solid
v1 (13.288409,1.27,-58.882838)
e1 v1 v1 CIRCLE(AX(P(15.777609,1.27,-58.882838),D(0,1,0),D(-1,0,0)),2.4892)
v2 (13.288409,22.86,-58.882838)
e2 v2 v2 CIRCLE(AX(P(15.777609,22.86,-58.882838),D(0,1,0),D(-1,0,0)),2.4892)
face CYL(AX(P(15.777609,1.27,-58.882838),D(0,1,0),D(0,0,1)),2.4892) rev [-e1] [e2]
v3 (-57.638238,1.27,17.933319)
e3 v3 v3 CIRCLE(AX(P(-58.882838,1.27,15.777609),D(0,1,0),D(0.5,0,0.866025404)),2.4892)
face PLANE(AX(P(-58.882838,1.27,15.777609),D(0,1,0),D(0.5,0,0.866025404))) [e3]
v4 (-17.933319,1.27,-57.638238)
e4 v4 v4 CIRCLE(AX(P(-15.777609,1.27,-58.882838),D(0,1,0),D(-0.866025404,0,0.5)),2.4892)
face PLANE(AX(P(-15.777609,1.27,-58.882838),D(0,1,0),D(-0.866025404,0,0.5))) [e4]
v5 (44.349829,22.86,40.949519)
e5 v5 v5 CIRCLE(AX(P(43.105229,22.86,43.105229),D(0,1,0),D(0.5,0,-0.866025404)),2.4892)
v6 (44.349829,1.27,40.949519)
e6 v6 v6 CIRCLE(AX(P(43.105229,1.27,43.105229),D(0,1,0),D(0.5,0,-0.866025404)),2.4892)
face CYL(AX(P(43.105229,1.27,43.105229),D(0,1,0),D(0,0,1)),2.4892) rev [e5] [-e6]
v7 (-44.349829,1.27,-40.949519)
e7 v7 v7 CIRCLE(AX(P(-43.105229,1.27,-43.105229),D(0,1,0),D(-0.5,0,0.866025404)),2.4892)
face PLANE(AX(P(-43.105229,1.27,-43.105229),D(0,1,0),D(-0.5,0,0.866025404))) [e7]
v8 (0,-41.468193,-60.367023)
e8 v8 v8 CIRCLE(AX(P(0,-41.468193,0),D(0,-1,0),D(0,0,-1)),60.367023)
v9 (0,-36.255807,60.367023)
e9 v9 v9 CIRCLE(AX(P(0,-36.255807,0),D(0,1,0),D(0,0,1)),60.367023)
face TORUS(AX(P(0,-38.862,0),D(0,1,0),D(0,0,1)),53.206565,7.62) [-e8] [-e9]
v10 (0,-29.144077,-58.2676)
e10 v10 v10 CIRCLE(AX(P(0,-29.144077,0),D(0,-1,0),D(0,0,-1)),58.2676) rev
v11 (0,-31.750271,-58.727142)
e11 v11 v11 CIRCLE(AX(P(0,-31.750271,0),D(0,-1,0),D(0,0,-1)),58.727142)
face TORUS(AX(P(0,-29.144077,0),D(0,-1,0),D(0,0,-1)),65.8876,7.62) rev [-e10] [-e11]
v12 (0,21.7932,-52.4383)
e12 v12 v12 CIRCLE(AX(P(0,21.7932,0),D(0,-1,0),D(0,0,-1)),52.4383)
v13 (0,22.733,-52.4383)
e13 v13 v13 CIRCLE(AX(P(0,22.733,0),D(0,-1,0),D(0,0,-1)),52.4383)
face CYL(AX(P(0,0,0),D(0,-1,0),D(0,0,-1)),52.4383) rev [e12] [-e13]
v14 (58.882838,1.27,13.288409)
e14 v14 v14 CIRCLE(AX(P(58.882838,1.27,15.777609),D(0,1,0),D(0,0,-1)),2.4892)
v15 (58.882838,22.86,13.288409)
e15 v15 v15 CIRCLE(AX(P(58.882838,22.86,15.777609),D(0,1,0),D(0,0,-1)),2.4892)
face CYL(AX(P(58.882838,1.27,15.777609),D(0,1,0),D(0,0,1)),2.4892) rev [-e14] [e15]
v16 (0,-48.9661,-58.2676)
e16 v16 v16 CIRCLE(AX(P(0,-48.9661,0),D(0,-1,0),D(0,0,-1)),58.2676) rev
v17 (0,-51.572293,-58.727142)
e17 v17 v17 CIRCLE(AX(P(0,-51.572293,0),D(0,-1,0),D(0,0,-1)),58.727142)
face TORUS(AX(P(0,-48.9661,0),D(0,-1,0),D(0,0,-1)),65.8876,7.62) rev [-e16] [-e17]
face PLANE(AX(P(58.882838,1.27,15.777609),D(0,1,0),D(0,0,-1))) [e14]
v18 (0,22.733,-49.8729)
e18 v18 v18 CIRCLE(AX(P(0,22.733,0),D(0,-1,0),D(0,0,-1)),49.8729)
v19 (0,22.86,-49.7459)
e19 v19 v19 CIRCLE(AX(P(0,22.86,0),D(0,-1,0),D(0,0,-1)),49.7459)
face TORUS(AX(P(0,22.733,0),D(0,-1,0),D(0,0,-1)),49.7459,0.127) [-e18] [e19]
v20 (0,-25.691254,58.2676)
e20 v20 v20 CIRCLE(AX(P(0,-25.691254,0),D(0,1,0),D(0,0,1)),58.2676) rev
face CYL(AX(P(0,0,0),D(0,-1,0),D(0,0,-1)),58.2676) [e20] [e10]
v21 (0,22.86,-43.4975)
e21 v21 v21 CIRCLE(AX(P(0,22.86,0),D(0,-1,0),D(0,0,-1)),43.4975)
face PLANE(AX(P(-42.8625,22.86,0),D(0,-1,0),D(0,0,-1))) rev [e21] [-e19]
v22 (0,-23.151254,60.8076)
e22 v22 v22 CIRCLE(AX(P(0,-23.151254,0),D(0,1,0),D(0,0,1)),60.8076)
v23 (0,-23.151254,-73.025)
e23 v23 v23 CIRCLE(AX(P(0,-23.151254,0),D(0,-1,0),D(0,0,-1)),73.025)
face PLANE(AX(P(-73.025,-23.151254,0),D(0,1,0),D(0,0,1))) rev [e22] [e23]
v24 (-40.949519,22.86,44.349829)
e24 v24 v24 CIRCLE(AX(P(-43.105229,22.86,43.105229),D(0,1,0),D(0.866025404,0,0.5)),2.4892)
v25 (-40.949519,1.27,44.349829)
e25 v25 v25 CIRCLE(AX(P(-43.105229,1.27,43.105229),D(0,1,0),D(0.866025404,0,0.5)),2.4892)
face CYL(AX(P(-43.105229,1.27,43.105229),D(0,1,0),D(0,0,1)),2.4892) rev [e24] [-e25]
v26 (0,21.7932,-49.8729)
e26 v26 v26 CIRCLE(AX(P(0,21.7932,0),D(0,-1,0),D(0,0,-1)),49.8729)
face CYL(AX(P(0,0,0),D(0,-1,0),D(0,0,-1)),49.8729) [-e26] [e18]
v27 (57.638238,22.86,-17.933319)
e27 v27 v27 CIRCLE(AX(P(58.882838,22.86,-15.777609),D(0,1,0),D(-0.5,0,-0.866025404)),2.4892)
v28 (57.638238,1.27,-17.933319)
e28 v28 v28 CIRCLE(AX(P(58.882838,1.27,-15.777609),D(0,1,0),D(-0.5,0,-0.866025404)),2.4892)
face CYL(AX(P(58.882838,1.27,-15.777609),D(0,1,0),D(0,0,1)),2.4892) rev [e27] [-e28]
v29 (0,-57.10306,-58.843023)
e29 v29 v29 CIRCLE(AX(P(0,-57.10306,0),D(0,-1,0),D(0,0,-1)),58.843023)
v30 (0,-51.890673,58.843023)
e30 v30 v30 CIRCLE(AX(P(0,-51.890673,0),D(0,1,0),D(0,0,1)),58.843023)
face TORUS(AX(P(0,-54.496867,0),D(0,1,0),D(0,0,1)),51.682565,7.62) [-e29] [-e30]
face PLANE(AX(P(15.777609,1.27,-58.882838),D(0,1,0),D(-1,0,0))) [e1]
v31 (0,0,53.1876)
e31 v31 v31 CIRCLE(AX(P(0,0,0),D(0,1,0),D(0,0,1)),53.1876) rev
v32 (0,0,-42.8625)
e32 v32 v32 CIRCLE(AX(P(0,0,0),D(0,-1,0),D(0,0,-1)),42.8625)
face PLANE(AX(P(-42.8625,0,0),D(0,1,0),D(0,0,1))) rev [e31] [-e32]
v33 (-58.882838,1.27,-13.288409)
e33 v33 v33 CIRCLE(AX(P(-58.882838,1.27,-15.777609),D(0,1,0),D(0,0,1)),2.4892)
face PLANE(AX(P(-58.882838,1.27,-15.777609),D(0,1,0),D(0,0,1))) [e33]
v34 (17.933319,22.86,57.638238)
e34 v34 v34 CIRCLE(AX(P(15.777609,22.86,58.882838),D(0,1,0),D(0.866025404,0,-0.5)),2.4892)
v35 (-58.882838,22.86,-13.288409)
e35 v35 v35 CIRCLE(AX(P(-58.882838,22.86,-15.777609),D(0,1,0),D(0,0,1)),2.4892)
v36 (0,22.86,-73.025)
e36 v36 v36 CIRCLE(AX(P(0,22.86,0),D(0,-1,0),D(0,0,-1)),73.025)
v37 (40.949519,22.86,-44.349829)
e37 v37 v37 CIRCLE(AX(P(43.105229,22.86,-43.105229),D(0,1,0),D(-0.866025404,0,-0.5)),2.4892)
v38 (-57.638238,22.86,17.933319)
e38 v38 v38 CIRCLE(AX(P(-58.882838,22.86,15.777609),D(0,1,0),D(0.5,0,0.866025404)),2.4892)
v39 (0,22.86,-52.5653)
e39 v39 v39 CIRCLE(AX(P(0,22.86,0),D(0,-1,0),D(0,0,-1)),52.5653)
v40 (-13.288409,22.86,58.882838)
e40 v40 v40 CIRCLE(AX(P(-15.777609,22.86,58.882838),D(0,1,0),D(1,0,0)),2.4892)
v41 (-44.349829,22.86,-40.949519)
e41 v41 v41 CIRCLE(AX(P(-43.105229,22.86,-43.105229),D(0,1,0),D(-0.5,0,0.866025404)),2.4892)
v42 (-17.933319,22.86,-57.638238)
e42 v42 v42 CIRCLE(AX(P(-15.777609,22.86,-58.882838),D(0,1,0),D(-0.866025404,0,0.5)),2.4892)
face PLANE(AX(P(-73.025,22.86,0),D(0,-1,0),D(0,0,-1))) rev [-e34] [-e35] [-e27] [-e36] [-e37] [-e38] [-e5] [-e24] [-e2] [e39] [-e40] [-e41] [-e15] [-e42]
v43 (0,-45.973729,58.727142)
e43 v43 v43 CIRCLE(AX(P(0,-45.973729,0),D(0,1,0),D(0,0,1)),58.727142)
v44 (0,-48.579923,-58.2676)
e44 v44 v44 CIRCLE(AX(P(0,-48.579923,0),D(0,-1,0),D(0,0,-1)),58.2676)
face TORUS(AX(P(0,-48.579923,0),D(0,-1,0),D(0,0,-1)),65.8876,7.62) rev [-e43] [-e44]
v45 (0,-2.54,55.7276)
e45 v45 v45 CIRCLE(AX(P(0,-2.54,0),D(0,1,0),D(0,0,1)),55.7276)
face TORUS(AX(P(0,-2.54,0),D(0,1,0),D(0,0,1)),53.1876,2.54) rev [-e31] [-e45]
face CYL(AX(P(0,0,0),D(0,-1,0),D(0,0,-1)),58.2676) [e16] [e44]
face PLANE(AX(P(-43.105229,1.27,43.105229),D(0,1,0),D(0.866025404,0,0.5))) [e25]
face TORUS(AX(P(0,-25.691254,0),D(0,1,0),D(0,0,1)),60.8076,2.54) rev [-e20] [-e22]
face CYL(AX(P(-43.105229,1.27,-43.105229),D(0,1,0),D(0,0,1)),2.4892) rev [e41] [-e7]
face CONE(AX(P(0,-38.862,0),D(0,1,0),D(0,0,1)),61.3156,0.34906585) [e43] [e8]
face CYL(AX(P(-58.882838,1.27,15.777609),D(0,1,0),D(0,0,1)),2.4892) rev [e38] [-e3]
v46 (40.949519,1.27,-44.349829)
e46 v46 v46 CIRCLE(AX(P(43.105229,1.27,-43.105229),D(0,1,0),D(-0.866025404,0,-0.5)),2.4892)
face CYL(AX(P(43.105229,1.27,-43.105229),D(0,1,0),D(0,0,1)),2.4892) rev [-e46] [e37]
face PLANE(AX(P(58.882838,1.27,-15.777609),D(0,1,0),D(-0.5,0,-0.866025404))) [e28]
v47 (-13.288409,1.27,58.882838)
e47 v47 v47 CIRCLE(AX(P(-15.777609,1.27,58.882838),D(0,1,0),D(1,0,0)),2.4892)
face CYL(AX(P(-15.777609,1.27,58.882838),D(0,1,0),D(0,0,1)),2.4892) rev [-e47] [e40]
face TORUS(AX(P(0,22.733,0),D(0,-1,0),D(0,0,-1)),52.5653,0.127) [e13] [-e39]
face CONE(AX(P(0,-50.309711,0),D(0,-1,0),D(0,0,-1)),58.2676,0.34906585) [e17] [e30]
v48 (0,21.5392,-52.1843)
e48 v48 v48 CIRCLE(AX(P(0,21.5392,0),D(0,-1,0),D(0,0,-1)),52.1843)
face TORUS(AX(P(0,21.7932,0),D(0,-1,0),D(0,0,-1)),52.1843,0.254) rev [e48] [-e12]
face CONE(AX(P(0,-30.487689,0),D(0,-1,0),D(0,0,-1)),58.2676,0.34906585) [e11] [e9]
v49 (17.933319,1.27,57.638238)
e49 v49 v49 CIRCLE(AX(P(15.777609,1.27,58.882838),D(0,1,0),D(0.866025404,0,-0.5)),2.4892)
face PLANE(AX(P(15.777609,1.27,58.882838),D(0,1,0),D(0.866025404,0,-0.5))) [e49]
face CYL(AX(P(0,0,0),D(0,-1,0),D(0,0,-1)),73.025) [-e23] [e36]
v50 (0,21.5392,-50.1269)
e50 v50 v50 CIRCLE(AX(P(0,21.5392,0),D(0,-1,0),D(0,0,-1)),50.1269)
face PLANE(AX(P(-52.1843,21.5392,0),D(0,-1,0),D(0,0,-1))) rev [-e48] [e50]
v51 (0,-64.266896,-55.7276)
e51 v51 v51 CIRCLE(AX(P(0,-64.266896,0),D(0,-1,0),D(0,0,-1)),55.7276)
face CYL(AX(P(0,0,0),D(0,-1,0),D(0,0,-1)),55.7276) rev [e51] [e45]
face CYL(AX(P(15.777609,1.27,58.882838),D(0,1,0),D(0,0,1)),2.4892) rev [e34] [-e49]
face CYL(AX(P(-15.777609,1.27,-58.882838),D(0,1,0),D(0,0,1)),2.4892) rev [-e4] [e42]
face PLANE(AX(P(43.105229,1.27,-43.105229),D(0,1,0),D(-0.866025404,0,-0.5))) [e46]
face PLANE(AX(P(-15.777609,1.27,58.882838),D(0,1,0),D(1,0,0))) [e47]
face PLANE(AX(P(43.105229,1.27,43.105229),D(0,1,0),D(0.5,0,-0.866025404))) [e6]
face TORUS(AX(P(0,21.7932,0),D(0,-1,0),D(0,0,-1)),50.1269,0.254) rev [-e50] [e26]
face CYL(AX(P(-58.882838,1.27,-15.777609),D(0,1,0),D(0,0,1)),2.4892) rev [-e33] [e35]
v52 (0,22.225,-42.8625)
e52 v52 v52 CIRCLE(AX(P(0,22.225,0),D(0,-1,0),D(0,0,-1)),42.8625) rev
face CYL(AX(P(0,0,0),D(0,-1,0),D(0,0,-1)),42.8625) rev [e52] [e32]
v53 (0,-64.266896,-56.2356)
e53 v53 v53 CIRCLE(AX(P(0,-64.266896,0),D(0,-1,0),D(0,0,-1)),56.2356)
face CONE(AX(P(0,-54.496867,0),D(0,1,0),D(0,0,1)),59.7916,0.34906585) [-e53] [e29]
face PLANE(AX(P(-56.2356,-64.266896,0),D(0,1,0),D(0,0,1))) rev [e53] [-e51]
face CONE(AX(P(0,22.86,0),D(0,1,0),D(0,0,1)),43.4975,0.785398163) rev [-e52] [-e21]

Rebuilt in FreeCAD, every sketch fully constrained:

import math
import FreeCAD as App
import Part
import Sketcher
Q = App.Units.Quantity


def edges_at(feature, points):
    """Names of the edges that pass closest to the given points."""
    edges = feature.Shape.Edges
    near = lambda p: min(range(len(edges)), key=lambda i: edges[i].distToShape(Part.Vertex(*p))[0])
    return sorted({f"Edge{near(p) + 1}" for p in points})

doc = App.newDocument("Part")
body = doc.addObject("PartDesign::Body", "Body")

# Sketch on XY plane
sketch1 = doc.addObject("Sketcher::SketchObject", "Sketch")
body.addObject(sketch1)
sketch1.AttachmentSupport = (doc.XY_Plane, [""])
sketch1.MapMode = "FlatFace"
sketch1.addGeometry([
    Part.LineSegment(App.Vector(-42.8625, 0, 0), App.Vector(-42.8625, 22.86, 0)),  # 0
    Part.LineSegment(App.Vector(-42.8625, 22.86, 0), App.Vector(-49.7459, 22.86, 0)),  # 1
    Part.ArcOfCircle(Part.Circle(App.Vector(-49.7459, 22.733, 0), App.Vector(0, 0, 1), 0.127), math.radians(90), math.radians(180)),  # 2
    Part.LineSegment(App.Vector(-49.8729, 22.733, 0), App.Vector(-49.8729, 21.7932, 0)),  # 3
    Part.ArcOfCircle(Part.Circle(App.Vector(-50.1269, 21.7932, 0), App.Vector(0, 0, 1), 0.254), math.radians(-90), math.radians(0)),  # 4
    Part.LineSegment(App.Vector(-50.1269, 21.5392, 0), App.Vector(-52.1843, 21.5392, 0)),  # 5
    Part.ArcOfCircle(Part.Circle(App.Vector(-52.1843, 21.7932, 0), App.Vector(0, 0, 1), 0.254), math.radians(-180), math.radians(-90)),  # 6
    Part.LineSegment(App.Vector(-52.4383, 21.7932, 0), App.Vector(-52.4383, 22.733, 0)),  # 7
    Part.ArcOfCircle(Part.Circle(App.Vector(-52.5653, 22.733, 0), App.Vector(0, 0, 1), 0.127), math.radians(0), math.radians(90)),  # 8
    Part.LineSegment(App.Vector(-52.5653, 22.86, 0), App.Vector(-73.025, 22.86, 0)),  # 9
    Part.LineSegment(App.Vector(-73.025, 22.86, 0), App.Vector(-73.025, -23.151254, 0)),  # 10
    Part.LineSegment(App.Vector(-73.025, -23.151254, 0), App.Vector(-58.2676, -23.151254, 0)),  # 11
    Part.LineSegment(App.Vector(-58.2676, -23.151254, 0), App.Vector(-58.2676, -30.487689, 0)),  # 12
    Part.LineSegment(App.Vector(-58.2676, -30.487689, 0), App.Vector(-61.3156, -38.862, 0)),  # 13
    Part.LineSegment(App.Vector(-61.3156, -38.862, 0), App.Vector(-58.2676, -47.236311, 0)),  # 14
    Part.LineSegment(App.Vector(-58.2676, -47.236311, 0), App.Vector(-58.2676, -50.309711, 0)),  # 15
    Part.LineSegment(App.Vector(-58.2676, -50.309711, 0), App.Vector(-59.7916, -54.496867, 0)),  # 16
    Part.LineSegment(App.Vector(-59.7916, -54.496867, 0), App.Vector(-56.2356, -64.266896, 0)),  # 17
    Part.LineSegment(App.Vector(-56.2356, -64.266896, 0), App.Vector(-55.7276, -64.266896, 0)),  # 18
    Part.LineSegment(App.Vector(-55.7276, -64.266896, 0), App.Vector(-55.7276, 0, 0)),  # 19
    Part.LineSegment(App.Vector(-55.7276, 0, 0), App.Vector(-42.8625, 0, 0)),  # 20
], False)
sketch1.addConstraint([
    Sketcher.Constraint("Coincident", 0, 2, 1, 1),
    Sketcher.Constraint("Tangent", 1, 2, 2, 1),
    Sketcher.Constraint("Tangent", 2, 2, 3, 1),
    Sketcher.Constraint("Tangent", 3, 2, 4, 2),
    Sketcher.Constraint("Tangent", 4, 1, 5, 1),
    Sketcher.Constraint("Tangent", 5, 2, 6, 2),
    Sketcher.Constraint("Tangent", 6, 1, 7, 1),
    Sketcher.Constraint("Tangent", 7, 2, 8, 1),
    Sketcher.Constraint("Tangent", 8, 2, 9, 1),
    Sketcher.Constraint("Coincident", 9, 2, 10, 1),
    Sketcher.Constraint("Coincident", 10, 2, 11, 1),
    Sketcher.Constraint("Coincident", 11, 2, 12, 1),
    Sketcher.Constraint("Coincident", 12, 2, 13, 1),
    Sketcher.Constraint("Coincident", 13, 2, 14, 1),
    Sketcher.Constraint("Coincident", 14, 2, 15, 1),
    Sketcher.Constraint("Coincident", 15, 2, 16, 1),
    Sketcher.Constraint("Coincident", 16, 2, 17, 1),
    Sketcher.Constraint("Coincident", 17, 2, 18, 1),
    Sketcher.Constraint("Coincident", 18, 2, 19, 1),
    Sketcher.Constraint("Coincident", 19, 2, 20, 1),
    Sketcher.Constraint("Coincident", 20, 2, 0, 1),
    Sketcher.Constraint("Vertical", 0),
    Sketcher.Constraint("Horizontal", 1),
    Sketcher.Constraint("Vertical", 3),
    Sketcher.Constraint("Horizontal", 5),
    Sketcher.Constraint("Vertical", 7),
    Sketcher.Constraint("Horizontal", 9),
    Sketcher.Constraint("Vertical", 10),
    Sketcher.Constraint("Horizontal", 11),
    Sketcher.Constraint("Vertical", 12),
    Sketcher.Constraint("Vertical", 15),
    Sketcher.Constraint("Horizontal", 18),
    Sketcher.Constraint("Vertical", 19),
    Sketcher.Constraint("Horizontal", 20),
    Sketcher.Constraint("Equal", 4, 6),
    Sketcher.Constraint("Equal", 2, 8),
    Sketcher.Constraint("PointOnObject", 19, 2, -1),
    Sketcher.Constraint("Parallel", 13, 16),
    Sketcher.Constraint("Parallel", 14, 17),
    Sketcher.Constraint("Horizontal", 2, 3, 8, 3),
    Sketcher.Constraint("Vertical", 12, 2, 14, 2),
    Sketcher.Constraint("Equal", 13, 14),
    Sketcher.Constraint("Radius", 4, Q("0.01 in")),
    Sketcher.Constraint("DistanceY", 0, 1, 0, 2, Q("0.9 in")),
    Sketcher.Constraint("Angle", 13, Q("-110 deg")),
    Sketcher.Constraint("Radius", 2, Q("0.005 in")),
    Sketcher.Constraint("DistanceX", 18, 1, 18, 2, Q("0.02 in")),
    Sketcher.Constraint("DistanceX", 13, 2, 17, 2, Q("0.2 in")),
    Sketcher.Constraint("DistanceX", 15, 2, 18, 2, Q("0.1 in")),
    Sketcher.Constraint("DistanceX", 1, 2, 1, 1, Q("0.271 in")),
    Sketcher.Constraint("DistanceX", 5, 2, 5, 1, Q("0.081 in")),
    Sketcher.Constraint("DistanceX", 11, 1, 11, 2, Q("0.581 in")),
    Sketcher.Constraint("DistanceY", 3, 2, 3, 1, Q("0.037 in")),
    Sketcher.Constraint("DistanceY", 15, 2, 15, 1, Q("0.121 in")),
    Sketcher.Constraint("DistanceY", 13, 2, -1, 1, Q("1.53 in")),
    Sketcher.Constraint("DistanceX", 16, 2, 15, 2, Q("0.06 in")),
    Sketcher.Constraint("DistanceX", 9, 2, 9, 1, Q("0.8055 in")),
    Sketcher.Constraint("DistanceX", 0, 2, -1, 1, Q("1.6875 in")),
    Sketcher.Constraint("DistanceY", 10, 2, 10, 1, Q("46.011254 mm")),
])
revolution = doc.addObject("PartDesign::Revolution", "Revolution")
body.addObject(revolution)
revolution.Profile = sketch1
revolution.ReferenceAxis = (sketch1, ["V_Axis"])
revolution.Angle = 360

# Sketch on XZ plane
sketch2 = doc.addObject("Sketcher::SketchObject", "Sketch001")
body.addObject(sketch2)
sketch2.AttachmentSupport = (doc.XZ_Plane, [""])
sketch2.MapMode = "FlatFace"
sketch2.AttachmentOffset = App.Placement(App.Vector(0, 0, -0.9 * 25.4), App.Rotation())
sketch2.addGeometry(Part.Circle(App.Vector(-58.882838, -15.777609, 0), App.Vector(0, 0, 1), 2.4892), False)
sketch2.addConstraint([
    Sketcher.Constraint("Diameter", 0, Q("0.196 in")),
    Sketcher.Constraint("DistanceX", 0, 3, -1, 1, Q("58.882838 mm")),
    Sketcher.Constraint("DistanceY", 0, 3, -1, 1, Q("15.777609 mm")),
])
pocket1 = doc.addObject("PartDesign::Pocket", "Pocket")
body.addObject(pocket1)
pocket1.Profile = sketch2
pocket1.Length = Q("0.85 in")
pocket1.Reversed = True
doc.recompute()

polarpattern = doc.addObject("PartDesign::PolarPattern", "PolarPattern")
body.addObject(polarpattern)
polarpattern.Originals = [pocket1]
polarpattern.Axis = (doc.Y_Axis, [""])
polarpattern.Angle = 360
polarpattern.Occurrences = 12
body.Tip = polarpattern
doc.recompute()

fillet = doc.addObject("PartDesign::Fillet", "Fillet")
body.addObject(fillet)
fillet.Base = (polarpattern, edges_at(polarpattern, [(61.316, -38.862, 0)]))
fillet.Radius = Q("0.3 in")
doc.recompute()

fillet2 = doc.addObject("PartDesign::Fillet", "Fillet001")
body.addObject(fillet2)
fillet2.Base = (fillet, edges_at(fillet, [(55.728, 0, 0), (58.268, -23.151, 0)]))
fillet2.Radius = Q("0.1 in")
doc.recompute()

fillet3 = doc.addObject("PartDesign::Fillet", "Fillet002")
body.addObject(fillet3)
fillet3.Base = (fillet2, edges_at(fillet2, [(59.792, -54.497, 0)]))
fillet3.Radius = Q("0.3 in")
doc.recompute()

fillet4 = doc.addObject("PartDesign::Fillet", "Fillet003")
body.addObject(fillet4)
fillet4.Base = (fillet3, edges_at(fillet3, [(58.268, -50.31, 0), (58.268, -47.236, 0), (58.268, -30.488, 0)]))
fillet4.Radius = Q("0.3 in")
doc.recompute()

chamfer = doc.addObject("PartDesign::Chamfer", "Chamfer")
body.addObject(chamfer)
chamfer.Base = (fillet4, edges_at(fillet4, [(42.862, 22.86, 0)]))
chamfer.Size = Q("0.025 in")

doc.recompute()
